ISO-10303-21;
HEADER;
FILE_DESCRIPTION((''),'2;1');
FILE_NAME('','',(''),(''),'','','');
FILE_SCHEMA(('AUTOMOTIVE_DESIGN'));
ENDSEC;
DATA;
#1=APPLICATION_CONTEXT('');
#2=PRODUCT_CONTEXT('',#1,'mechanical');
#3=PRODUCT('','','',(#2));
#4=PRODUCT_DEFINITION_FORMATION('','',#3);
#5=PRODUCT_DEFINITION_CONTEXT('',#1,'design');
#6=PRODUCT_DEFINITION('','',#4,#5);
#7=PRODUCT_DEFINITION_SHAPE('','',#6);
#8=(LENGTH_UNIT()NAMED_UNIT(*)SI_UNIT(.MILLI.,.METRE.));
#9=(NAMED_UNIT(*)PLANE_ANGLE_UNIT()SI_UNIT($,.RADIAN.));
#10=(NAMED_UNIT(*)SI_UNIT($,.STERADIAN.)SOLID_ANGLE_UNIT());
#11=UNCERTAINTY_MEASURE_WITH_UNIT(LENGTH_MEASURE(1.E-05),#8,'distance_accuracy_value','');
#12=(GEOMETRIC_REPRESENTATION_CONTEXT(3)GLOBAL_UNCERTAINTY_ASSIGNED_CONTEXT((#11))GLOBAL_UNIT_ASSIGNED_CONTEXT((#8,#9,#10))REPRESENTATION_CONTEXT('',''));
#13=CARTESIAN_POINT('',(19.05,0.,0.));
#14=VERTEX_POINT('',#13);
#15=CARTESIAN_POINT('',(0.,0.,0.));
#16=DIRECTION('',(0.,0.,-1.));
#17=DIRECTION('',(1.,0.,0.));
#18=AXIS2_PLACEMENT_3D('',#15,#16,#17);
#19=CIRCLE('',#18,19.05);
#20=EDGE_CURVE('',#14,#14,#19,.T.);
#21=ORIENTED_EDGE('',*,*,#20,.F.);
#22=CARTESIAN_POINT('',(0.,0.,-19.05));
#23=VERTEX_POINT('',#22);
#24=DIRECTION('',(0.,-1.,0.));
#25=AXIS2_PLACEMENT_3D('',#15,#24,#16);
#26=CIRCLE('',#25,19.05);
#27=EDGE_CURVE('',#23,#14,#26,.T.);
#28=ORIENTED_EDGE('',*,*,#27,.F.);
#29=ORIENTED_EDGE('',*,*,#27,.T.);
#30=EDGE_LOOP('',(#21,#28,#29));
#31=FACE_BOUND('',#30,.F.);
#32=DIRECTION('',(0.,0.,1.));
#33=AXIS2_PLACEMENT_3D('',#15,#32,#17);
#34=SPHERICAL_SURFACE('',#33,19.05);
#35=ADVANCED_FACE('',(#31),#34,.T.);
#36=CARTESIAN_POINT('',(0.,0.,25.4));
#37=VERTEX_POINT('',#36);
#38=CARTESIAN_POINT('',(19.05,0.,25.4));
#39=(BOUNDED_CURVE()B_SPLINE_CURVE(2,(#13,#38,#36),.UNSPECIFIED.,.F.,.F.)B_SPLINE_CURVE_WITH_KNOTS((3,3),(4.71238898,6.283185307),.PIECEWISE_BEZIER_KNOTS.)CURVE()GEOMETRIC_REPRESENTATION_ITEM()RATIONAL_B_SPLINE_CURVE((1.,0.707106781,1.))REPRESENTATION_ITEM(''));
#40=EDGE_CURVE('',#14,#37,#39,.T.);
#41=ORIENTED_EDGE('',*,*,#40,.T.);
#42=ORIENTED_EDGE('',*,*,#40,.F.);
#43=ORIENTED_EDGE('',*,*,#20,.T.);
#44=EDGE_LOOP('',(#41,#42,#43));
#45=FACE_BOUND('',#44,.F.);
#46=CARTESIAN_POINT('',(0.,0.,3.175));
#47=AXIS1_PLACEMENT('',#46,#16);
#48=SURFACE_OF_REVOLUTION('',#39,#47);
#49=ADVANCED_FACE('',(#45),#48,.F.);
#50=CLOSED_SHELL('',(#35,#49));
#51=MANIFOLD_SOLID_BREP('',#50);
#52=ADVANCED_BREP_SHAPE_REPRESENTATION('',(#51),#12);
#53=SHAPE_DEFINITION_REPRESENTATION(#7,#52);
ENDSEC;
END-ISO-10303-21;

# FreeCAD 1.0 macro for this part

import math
import FreeCAD as App
import Part
import Sketcher

doc = App.newDocument("Part")
body = doc.addObject("PartDesign::Body", "Body")

sketch1 = body.newObject("Sketcher::SketchObject", "Sketch")
sketch1.AttachmentSupport = (doc.getObject("XZ_Plane"), [""])
sketch1.MapMode = "FlatFace"
sketch1.addGeometry(Part.LineSegment(App.Vector(0, 25.4, 0), App.Vector(0, -19.05, 0)), False)
sketch1.addGeometry(Part.ArcOfCircle(Part.Circle(App.Vector(0, 0, 0), App.Vector(0, 0, 1), 19.05), math.radians(-90), math.radians(0)), False)
sketch1.addGeometry(Part.BSplineCurve([App.Vector(19.05, 0, 0), App.Vector(19.05, 25.4, 0), App.Vector(0, 25.4, 0)], [3, 3], [4.71238898, 6.283185307], False, 2, [1, 0.707106781, 1], False), False)
sketch1.addConstraint(Sketcher.Constraint("Block", 2))
sketch1.addConstraint(Sketcher.Constraint("Coincident", 0, 2, 1, 1))
sketch1.addConstraint(Sketcher.Constraint("Coincident", 1, 2, 2, 1))
sketch1.addConstraint(Sketcher.Constraint("Coincident", 2, 2, 0, 1))
sketch1.addConstraint(Sketcher.Constraint("Vertical", 0))
sketch1.addConstraint(Sketcher.Constraint("Coincident", 1, 3, -1, 1))
revolution = body.newObject("PartDesign::Revolution", "Revolution")
revolution.Profile = sketch1
revolution.ReferenceAxis = (sketch1, ["V_Axis"])
revolution.Angle = 360

doc.recompute()
